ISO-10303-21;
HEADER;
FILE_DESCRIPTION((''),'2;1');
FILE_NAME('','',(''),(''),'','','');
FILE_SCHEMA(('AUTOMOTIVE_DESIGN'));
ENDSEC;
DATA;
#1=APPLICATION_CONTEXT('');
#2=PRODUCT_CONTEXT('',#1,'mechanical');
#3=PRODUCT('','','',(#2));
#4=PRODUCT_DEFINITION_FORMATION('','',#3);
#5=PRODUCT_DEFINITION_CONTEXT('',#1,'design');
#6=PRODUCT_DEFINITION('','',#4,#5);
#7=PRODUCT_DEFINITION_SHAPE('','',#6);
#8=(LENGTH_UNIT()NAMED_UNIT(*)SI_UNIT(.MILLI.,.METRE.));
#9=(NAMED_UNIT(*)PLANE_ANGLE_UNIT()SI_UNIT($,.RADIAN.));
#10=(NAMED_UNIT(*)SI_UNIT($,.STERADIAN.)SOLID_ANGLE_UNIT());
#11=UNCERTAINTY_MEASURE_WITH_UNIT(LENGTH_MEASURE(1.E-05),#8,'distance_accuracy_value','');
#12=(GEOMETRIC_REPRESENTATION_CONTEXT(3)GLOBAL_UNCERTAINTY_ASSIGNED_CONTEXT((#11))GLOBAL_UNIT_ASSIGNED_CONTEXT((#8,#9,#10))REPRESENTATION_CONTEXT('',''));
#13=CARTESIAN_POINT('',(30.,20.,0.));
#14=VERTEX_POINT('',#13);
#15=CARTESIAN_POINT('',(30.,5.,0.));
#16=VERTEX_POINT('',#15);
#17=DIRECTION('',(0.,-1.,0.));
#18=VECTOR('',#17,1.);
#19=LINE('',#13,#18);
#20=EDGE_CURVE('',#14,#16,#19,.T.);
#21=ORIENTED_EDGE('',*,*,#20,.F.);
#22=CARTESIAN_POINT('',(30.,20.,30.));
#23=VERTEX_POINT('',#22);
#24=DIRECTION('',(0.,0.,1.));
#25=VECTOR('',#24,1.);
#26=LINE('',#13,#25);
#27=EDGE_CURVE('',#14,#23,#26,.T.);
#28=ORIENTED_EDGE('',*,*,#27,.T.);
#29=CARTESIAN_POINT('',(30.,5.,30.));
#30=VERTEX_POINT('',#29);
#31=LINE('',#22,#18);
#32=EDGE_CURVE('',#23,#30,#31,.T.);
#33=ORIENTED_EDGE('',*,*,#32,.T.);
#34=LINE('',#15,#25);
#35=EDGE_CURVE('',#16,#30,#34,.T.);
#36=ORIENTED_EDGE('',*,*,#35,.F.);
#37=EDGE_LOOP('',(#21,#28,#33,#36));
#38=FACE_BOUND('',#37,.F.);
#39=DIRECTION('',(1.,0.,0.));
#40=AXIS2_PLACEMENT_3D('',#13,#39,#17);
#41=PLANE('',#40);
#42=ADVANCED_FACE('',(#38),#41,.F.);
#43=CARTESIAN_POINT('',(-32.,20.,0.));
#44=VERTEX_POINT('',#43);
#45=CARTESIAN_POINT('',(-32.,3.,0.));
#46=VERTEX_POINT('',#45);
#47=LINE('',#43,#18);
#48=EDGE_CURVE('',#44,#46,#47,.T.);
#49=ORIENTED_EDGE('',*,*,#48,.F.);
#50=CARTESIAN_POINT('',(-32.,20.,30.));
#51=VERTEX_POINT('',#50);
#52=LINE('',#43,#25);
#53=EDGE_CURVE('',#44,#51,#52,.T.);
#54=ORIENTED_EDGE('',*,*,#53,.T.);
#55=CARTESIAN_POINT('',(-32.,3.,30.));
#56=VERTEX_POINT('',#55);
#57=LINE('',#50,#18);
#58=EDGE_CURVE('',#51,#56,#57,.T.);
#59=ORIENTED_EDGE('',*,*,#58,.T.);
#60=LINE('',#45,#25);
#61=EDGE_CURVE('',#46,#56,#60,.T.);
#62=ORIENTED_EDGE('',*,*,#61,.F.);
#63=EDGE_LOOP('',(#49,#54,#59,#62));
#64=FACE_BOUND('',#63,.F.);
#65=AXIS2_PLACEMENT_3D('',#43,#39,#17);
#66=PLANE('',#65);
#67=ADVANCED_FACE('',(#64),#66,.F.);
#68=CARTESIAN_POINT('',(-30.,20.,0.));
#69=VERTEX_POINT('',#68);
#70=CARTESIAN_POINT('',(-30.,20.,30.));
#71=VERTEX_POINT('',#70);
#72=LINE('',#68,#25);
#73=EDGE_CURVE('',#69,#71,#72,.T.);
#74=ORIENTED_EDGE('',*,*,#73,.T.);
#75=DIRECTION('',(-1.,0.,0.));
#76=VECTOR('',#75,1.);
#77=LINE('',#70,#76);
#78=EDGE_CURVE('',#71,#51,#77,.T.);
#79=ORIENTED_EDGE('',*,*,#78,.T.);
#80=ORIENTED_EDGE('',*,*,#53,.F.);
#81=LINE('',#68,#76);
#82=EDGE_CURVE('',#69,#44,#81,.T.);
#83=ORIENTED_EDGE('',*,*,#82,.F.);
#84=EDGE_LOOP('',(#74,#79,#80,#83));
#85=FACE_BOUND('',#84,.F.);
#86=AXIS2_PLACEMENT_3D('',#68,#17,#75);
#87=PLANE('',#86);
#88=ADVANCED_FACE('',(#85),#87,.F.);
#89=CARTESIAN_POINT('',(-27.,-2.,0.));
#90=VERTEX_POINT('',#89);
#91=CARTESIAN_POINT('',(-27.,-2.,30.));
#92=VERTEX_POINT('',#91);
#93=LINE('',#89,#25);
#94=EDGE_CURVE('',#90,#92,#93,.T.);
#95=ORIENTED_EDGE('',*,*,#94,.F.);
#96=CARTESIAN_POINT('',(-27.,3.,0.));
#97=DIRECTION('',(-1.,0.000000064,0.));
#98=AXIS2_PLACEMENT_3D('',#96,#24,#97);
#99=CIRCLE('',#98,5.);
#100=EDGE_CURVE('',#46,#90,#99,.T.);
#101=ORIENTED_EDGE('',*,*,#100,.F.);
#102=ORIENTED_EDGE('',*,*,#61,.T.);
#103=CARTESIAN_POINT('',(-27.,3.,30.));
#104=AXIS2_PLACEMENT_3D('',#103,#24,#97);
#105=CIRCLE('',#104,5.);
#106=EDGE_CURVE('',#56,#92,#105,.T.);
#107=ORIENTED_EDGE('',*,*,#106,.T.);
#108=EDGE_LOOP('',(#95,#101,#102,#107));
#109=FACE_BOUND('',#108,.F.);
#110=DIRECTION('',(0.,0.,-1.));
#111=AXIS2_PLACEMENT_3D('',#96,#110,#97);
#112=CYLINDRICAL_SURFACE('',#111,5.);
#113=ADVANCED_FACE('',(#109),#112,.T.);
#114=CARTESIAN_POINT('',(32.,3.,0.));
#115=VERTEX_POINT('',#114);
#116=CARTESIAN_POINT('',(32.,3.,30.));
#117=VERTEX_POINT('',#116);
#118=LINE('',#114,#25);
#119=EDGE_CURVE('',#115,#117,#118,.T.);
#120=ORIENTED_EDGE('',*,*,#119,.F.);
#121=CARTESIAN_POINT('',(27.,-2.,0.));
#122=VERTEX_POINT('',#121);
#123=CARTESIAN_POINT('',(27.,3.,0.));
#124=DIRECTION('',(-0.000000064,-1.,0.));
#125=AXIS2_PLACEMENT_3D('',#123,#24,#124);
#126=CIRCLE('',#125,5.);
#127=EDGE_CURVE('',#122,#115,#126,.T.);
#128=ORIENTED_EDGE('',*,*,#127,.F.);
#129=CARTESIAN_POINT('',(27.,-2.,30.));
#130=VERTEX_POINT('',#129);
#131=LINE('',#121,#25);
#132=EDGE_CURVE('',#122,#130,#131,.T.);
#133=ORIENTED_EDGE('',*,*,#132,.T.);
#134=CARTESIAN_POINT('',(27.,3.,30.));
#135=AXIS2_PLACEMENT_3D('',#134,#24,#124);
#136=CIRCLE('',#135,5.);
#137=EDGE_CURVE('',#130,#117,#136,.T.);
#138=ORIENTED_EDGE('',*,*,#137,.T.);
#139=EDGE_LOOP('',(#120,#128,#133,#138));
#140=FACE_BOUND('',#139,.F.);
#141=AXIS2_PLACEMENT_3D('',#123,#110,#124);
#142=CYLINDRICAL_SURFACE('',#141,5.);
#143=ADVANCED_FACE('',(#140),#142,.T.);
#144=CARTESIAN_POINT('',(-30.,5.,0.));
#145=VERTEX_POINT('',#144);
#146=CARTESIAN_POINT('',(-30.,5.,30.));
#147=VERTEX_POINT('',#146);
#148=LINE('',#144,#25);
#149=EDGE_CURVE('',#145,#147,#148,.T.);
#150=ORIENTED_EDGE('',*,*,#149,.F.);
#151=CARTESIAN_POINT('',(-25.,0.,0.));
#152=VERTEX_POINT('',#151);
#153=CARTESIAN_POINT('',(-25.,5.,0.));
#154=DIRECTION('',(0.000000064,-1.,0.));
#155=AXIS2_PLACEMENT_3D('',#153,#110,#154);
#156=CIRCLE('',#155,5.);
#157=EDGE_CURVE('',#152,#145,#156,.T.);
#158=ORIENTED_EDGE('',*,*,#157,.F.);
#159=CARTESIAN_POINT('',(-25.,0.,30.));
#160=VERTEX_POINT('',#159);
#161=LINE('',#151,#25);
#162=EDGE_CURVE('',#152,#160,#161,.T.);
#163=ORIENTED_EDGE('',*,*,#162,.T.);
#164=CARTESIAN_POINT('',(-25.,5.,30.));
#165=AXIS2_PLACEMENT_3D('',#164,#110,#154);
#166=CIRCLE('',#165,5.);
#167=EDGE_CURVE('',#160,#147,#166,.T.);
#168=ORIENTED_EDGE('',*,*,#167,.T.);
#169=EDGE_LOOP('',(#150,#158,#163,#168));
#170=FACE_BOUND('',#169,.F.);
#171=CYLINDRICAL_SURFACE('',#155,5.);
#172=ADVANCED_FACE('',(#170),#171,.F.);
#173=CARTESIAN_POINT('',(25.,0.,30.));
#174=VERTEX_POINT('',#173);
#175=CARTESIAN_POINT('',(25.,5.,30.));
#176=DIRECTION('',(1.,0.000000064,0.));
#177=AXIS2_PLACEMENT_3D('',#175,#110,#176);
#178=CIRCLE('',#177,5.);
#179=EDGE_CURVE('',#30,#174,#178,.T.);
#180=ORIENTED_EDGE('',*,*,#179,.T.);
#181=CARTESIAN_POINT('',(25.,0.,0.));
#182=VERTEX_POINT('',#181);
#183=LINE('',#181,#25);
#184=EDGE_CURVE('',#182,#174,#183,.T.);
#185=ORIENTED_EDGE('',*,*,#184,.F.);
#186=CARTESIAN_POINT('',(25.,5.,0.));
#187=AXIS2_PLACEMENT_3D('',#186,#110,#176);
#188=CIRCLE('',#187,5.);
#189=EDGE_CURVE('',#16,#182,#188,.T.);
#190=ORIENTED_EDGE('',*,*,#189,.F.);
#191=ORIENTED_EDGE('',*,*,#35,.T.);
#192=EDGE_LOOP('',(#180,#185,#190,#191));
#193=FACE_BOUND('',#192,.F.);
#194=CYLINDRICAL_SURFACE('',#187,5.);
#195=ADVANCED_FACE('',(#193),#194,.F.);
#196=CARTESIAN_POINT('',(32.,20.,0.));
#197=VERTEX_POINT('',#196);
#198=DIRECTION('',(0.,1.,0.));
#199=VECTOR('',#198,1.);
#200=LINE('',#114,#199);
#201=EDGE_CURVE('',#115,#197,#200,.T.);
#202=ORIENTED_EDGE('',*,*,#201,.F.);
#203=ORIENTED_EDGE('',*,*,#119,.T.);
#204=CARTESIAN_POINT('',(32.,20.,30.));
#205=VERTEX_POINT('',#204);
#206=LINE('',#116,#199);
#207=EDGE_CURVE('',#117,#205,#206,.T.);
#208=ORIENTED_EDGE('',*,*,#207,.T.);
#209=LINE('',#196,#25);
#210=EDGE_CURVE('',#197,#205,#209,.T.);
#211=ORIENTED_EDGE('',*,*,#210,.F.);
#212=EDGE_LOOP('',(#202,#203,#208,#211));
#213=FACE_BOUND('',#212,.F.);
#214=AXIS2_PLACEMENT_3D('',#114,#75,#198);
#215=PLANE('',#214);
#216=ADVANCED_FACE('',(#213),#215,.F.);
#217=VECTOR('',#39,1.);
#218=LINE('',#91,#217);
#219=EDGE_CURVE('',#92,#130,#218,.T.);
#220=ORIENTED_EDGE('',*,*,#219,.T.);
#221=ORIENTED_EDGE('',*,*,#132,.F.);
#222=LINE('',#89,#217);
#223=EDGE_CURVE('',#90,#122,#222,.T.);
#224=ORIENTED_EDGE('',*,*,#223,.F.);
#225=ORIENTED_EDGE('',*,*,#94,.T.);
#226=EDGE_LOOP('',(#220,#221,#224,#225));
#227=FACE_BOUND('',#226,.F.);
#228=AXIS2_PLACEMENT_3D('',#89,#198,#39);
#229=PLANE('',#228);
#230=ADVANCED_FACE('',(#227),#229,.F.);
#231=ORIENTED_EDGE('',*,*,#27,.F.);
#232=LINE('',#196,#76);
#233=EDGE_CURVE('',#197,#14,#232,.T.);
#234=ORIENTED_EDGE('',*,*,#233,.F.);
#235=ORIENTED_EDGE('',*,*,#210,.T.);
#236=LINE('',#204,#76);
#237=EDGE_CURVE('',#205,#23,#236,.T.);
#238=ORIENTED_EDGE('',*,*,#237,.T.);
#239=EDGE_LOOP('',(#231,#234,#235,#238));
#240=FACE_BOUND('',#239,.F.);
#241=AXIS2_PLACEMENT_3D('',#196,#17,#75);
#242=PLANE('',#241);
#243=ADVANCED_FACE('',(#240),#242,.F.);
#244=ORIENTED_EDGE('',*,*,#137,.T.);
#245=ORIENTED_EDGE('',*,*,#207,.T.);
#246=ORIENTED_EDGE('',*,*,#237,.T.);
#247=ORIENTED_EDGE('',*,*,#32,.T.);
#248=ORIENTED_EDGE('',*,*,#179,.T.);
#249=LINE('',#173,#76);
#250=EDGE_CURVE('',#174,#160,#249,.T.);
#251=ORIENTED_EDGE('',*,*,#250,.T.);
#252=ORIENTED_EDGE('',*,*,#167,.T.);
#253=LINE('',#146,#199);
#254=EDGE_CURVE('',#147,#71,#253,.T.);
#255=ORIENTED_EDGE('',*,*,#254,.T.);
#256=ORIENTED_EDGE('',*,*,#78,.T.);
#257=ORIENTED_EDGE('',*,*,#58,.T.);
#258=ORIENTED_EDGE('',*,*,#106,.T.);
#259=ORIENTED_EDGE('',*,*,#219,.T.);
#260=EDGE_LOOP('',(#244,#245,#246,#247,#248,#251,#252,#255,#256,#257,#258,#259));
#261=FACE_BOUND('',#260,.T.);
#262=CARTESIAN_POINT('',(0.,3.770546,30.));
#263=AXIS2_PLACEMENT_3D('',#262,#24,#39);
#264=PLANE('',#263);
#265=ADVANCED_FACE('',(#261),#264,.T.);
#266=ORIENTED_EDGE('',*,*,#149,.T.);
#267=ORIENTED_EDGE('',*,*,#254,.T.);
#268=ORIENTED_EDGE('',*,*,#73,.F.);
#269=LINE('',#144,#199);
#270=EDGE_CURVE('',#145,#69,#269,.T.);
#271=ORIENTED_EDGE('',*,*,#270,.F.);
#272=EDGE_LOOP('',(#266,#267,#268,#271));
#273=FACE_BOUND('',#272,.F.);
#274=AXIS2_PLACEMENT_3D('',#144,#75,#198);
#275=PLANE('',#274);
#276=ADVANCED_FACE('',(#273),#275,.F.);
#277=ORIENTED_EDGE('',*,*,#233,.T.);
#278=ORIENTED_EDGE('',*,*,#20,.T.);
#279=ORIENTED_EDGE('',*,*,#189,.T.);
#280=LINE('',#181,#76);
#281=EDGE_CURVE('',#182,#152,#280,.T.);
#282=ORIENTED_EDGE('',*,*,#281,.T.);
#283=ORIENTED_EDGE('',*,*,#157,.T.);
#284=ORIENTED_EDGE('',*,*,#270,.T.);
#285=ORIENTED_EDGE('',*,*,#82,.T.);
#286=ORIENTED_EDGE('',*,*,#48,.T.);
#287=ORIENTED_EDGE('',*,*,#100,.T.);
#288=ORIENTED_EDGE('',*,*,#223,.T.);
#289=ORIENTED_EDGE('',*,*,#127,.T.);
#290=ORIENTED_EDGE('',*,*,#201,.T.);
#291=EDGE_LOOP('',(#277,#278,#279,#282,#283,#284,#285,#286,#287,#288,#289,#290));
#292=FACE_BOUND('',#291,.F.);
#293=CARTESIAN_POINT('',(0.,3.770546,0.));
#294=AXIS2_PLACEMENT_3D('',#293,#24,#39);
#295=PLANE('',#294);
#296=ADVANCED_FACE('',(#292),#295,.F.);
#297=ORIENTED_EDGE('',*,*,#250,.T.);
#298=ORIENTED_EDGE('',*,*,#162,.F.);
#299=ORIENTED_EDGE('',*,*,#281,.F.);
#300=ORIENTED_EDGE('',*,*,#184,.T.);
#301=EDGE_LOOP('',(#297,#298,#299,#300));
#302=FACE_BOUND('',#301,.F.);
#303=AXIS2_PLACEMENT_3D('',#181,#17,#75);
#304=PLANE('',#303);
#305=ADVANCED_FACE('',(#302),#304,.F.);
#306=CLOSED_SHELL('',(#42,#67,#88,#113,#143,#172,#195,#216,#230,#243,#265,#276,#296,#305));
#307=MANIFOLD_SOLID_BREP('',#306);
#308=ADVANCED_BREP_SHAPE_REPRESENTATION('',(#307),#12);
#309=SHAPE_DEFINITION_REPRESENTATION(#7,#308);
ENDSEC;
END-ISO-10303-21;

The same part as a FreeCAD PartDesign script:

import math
import FreeCAD as App
import Part
import Sketcher
Q = App.Units.Quantity

doc = App.newDocument("Part")
params = doc.addObject("Spreadsheet::Sheet", "Params")
for row, (alias, value) in enumerate([
    ("sketch1_radius", "5 mm"),
    ("sketch1_width", "50 mm"),
    ("sketch1_width2", "2 mm"),
    ("sketch1_height", "15 mm"),
    ("sketch1_height2", "17 mm"),
    ("pad1_length", "30 mm"),
], start=1):
    params.set(f"A{row}", alias)
    params.set(f"B{row}", "=" + value)
    params.setAlias(f"B{row}", alias)

body = doc.addObject("PartDesign::Body", "Body")

# Sketch on XY plane
sketch1 = body.newObject("Sketcher::SketchObject", "Sketch")
sketch1.AttachmentSupport = (doc.getObject("XY_Plane"), [""])
sketch1.MapMode = "FlatFace"
sketch1.addGeometry([
    Part.LineSegment(App.Vector(25, 0, 0), App.Vector(-25, 0, 0)),  # 0
    Part.ArcOfCircle(Part.Circle(App.Vector(-25, 5, 0), App.Vector(0, 0, 1), 5), math.radians(180), math.radians(270)),  # 1
    Part.LineSegment(App.Vector(-30, 5, 0), App.Vector(-30, 20, 0)),  # 2
    Part.LineSegment(App.Vector(-30, 20, 0), App.Vector(-32, 20, 0)),  # 3
    Part.LineSegment(App.Vector(-32, 20, 0), App.Vector(-32, 3, 0)),  # 4
    Part.ArcOfCircle(Part.Circle(App.Vector(-27, 3, 0), App.Vector(0, 0, 1), 5), math.radians(180), math.radians(270)),  # 5
    Part.LineSegment(App.Vector(-27, -2, 0), App.Vector(27, -2, 0)),  # 6
    Part.ArcOfCircle(Part.Circle(App.Vector(27, 3, 0), App.Vector(0, 0, 1), 5), math.radians(-90), math.radians(0)),  # 7
    Part.LineSegment(App.Vector(32, 3, 0), App.Vector(32, 20, 0)),  # 8
    Part.LineSegment(App.Vector(32, 20, 0), App.Vector(30, 20, 0)),  # 9
    Part.LineSegment(App.Vector(30, 20, 0), App.Vector(30, 5, 0)),  # 10
    Part.ArcOfCircle(Part.Circle(App.Vector(25, 5, 0), App.Vector(0, 0, 1), 5), math.radians(-90), math.radians(0)),  # 11
], False)
sketch1.addConstraint([
    Sketcher.Constraint("Tangent", 0, 2, 1, 2),
    Sketcher.Constraint("Tangent", 1, 1, 2, 1),
    Sketcher.Constraint("Coincident", 2, 2, 3, 1),
    Sketcher.Constraint("Coincident", 3, 2, 4, 1),
    Sketcher.Constraint("Tangent", 4, 2, 5, 1),
    Sketcher.Constraint("Tangent", 5, 2, 6, 1),
    Sketcher.Constraint("Tangent", 6, 2, 7, 1),
    Sketcher.Constraint("Tangent", 7, 2, 8, 1),
    Sketcher.Constraint("Coincident", 8, 2, 9, 1),
    Sketcher.Constraint("Coincident", 9, 2, 10, 1),
    Sketcher.Constraint("Tangent", 10, 2, 11, 2),
    Sketcher.Constraint("Tangent", 11, 1, 0, 1),
    Sketcher.Constraint("Horizontal", 0),
    Sketcher.Constraint("Vertical", 2),
    Sketcher.Constraint("Horizontal", 3),
    Sketcher.Constraint("Vertical", 4),
    Sketcher.Constraint("Horizontal", 6),
    Sketcher.Constraint("Vertical", 8),
    Sketcher.Constraint("Horizontal", 9),
    Sketcher.Constraint("Vertical", 10),
    Sketcher.Constraint("Equal", 1, 5),
    Sketcher.Constraint("Equal", 5, 7),
    Sketcher.Constraint("Equal", 7, 11),
    Sketcher.Constraint("Symmetric", 0, 2, 11, 1, -1, 1),
    Sketcher.Constraint("Symmetric", 3, 2, 8, 2, -2),
    Sketcher.Constraint("Radius", 1, Q("5 mm")),
    Sketcher.Constraint("DistanceX", 0, 2, 0, 1, Q("50 mm")),
    Sketcher.Constraint("DistanceX", 3, 2, 3, 1, Q("2 mm")),
    Sketcher.Constraint("DistanceY", 2, 1, 2, 2, Q("15 mm")),
    Sketcher.Constraint("DistanceY", 4, 2, 4, 1, Q("17 mm")),
])
sketch1.setExpression("Constraints[25]", "Params.sketch1_radius")
sketch1.setExpression("Constraints[26]", "Params.sketch1_width")
sketch1.setExpression("Constraints[27]", "Params.sketch1_width2")
sketch1.setExpression("Constraints[28]", "Params.sketch1_height")
sketch1.setExpression("Constraints[29]", "Params.sketch1_height2")
pad1 = body.newObject("PartDesign::Pad", "Pad")
pad1.Profile = sketch1
pad1.setExpression("Length", "Params.pad1_length")

doc.recompute()
